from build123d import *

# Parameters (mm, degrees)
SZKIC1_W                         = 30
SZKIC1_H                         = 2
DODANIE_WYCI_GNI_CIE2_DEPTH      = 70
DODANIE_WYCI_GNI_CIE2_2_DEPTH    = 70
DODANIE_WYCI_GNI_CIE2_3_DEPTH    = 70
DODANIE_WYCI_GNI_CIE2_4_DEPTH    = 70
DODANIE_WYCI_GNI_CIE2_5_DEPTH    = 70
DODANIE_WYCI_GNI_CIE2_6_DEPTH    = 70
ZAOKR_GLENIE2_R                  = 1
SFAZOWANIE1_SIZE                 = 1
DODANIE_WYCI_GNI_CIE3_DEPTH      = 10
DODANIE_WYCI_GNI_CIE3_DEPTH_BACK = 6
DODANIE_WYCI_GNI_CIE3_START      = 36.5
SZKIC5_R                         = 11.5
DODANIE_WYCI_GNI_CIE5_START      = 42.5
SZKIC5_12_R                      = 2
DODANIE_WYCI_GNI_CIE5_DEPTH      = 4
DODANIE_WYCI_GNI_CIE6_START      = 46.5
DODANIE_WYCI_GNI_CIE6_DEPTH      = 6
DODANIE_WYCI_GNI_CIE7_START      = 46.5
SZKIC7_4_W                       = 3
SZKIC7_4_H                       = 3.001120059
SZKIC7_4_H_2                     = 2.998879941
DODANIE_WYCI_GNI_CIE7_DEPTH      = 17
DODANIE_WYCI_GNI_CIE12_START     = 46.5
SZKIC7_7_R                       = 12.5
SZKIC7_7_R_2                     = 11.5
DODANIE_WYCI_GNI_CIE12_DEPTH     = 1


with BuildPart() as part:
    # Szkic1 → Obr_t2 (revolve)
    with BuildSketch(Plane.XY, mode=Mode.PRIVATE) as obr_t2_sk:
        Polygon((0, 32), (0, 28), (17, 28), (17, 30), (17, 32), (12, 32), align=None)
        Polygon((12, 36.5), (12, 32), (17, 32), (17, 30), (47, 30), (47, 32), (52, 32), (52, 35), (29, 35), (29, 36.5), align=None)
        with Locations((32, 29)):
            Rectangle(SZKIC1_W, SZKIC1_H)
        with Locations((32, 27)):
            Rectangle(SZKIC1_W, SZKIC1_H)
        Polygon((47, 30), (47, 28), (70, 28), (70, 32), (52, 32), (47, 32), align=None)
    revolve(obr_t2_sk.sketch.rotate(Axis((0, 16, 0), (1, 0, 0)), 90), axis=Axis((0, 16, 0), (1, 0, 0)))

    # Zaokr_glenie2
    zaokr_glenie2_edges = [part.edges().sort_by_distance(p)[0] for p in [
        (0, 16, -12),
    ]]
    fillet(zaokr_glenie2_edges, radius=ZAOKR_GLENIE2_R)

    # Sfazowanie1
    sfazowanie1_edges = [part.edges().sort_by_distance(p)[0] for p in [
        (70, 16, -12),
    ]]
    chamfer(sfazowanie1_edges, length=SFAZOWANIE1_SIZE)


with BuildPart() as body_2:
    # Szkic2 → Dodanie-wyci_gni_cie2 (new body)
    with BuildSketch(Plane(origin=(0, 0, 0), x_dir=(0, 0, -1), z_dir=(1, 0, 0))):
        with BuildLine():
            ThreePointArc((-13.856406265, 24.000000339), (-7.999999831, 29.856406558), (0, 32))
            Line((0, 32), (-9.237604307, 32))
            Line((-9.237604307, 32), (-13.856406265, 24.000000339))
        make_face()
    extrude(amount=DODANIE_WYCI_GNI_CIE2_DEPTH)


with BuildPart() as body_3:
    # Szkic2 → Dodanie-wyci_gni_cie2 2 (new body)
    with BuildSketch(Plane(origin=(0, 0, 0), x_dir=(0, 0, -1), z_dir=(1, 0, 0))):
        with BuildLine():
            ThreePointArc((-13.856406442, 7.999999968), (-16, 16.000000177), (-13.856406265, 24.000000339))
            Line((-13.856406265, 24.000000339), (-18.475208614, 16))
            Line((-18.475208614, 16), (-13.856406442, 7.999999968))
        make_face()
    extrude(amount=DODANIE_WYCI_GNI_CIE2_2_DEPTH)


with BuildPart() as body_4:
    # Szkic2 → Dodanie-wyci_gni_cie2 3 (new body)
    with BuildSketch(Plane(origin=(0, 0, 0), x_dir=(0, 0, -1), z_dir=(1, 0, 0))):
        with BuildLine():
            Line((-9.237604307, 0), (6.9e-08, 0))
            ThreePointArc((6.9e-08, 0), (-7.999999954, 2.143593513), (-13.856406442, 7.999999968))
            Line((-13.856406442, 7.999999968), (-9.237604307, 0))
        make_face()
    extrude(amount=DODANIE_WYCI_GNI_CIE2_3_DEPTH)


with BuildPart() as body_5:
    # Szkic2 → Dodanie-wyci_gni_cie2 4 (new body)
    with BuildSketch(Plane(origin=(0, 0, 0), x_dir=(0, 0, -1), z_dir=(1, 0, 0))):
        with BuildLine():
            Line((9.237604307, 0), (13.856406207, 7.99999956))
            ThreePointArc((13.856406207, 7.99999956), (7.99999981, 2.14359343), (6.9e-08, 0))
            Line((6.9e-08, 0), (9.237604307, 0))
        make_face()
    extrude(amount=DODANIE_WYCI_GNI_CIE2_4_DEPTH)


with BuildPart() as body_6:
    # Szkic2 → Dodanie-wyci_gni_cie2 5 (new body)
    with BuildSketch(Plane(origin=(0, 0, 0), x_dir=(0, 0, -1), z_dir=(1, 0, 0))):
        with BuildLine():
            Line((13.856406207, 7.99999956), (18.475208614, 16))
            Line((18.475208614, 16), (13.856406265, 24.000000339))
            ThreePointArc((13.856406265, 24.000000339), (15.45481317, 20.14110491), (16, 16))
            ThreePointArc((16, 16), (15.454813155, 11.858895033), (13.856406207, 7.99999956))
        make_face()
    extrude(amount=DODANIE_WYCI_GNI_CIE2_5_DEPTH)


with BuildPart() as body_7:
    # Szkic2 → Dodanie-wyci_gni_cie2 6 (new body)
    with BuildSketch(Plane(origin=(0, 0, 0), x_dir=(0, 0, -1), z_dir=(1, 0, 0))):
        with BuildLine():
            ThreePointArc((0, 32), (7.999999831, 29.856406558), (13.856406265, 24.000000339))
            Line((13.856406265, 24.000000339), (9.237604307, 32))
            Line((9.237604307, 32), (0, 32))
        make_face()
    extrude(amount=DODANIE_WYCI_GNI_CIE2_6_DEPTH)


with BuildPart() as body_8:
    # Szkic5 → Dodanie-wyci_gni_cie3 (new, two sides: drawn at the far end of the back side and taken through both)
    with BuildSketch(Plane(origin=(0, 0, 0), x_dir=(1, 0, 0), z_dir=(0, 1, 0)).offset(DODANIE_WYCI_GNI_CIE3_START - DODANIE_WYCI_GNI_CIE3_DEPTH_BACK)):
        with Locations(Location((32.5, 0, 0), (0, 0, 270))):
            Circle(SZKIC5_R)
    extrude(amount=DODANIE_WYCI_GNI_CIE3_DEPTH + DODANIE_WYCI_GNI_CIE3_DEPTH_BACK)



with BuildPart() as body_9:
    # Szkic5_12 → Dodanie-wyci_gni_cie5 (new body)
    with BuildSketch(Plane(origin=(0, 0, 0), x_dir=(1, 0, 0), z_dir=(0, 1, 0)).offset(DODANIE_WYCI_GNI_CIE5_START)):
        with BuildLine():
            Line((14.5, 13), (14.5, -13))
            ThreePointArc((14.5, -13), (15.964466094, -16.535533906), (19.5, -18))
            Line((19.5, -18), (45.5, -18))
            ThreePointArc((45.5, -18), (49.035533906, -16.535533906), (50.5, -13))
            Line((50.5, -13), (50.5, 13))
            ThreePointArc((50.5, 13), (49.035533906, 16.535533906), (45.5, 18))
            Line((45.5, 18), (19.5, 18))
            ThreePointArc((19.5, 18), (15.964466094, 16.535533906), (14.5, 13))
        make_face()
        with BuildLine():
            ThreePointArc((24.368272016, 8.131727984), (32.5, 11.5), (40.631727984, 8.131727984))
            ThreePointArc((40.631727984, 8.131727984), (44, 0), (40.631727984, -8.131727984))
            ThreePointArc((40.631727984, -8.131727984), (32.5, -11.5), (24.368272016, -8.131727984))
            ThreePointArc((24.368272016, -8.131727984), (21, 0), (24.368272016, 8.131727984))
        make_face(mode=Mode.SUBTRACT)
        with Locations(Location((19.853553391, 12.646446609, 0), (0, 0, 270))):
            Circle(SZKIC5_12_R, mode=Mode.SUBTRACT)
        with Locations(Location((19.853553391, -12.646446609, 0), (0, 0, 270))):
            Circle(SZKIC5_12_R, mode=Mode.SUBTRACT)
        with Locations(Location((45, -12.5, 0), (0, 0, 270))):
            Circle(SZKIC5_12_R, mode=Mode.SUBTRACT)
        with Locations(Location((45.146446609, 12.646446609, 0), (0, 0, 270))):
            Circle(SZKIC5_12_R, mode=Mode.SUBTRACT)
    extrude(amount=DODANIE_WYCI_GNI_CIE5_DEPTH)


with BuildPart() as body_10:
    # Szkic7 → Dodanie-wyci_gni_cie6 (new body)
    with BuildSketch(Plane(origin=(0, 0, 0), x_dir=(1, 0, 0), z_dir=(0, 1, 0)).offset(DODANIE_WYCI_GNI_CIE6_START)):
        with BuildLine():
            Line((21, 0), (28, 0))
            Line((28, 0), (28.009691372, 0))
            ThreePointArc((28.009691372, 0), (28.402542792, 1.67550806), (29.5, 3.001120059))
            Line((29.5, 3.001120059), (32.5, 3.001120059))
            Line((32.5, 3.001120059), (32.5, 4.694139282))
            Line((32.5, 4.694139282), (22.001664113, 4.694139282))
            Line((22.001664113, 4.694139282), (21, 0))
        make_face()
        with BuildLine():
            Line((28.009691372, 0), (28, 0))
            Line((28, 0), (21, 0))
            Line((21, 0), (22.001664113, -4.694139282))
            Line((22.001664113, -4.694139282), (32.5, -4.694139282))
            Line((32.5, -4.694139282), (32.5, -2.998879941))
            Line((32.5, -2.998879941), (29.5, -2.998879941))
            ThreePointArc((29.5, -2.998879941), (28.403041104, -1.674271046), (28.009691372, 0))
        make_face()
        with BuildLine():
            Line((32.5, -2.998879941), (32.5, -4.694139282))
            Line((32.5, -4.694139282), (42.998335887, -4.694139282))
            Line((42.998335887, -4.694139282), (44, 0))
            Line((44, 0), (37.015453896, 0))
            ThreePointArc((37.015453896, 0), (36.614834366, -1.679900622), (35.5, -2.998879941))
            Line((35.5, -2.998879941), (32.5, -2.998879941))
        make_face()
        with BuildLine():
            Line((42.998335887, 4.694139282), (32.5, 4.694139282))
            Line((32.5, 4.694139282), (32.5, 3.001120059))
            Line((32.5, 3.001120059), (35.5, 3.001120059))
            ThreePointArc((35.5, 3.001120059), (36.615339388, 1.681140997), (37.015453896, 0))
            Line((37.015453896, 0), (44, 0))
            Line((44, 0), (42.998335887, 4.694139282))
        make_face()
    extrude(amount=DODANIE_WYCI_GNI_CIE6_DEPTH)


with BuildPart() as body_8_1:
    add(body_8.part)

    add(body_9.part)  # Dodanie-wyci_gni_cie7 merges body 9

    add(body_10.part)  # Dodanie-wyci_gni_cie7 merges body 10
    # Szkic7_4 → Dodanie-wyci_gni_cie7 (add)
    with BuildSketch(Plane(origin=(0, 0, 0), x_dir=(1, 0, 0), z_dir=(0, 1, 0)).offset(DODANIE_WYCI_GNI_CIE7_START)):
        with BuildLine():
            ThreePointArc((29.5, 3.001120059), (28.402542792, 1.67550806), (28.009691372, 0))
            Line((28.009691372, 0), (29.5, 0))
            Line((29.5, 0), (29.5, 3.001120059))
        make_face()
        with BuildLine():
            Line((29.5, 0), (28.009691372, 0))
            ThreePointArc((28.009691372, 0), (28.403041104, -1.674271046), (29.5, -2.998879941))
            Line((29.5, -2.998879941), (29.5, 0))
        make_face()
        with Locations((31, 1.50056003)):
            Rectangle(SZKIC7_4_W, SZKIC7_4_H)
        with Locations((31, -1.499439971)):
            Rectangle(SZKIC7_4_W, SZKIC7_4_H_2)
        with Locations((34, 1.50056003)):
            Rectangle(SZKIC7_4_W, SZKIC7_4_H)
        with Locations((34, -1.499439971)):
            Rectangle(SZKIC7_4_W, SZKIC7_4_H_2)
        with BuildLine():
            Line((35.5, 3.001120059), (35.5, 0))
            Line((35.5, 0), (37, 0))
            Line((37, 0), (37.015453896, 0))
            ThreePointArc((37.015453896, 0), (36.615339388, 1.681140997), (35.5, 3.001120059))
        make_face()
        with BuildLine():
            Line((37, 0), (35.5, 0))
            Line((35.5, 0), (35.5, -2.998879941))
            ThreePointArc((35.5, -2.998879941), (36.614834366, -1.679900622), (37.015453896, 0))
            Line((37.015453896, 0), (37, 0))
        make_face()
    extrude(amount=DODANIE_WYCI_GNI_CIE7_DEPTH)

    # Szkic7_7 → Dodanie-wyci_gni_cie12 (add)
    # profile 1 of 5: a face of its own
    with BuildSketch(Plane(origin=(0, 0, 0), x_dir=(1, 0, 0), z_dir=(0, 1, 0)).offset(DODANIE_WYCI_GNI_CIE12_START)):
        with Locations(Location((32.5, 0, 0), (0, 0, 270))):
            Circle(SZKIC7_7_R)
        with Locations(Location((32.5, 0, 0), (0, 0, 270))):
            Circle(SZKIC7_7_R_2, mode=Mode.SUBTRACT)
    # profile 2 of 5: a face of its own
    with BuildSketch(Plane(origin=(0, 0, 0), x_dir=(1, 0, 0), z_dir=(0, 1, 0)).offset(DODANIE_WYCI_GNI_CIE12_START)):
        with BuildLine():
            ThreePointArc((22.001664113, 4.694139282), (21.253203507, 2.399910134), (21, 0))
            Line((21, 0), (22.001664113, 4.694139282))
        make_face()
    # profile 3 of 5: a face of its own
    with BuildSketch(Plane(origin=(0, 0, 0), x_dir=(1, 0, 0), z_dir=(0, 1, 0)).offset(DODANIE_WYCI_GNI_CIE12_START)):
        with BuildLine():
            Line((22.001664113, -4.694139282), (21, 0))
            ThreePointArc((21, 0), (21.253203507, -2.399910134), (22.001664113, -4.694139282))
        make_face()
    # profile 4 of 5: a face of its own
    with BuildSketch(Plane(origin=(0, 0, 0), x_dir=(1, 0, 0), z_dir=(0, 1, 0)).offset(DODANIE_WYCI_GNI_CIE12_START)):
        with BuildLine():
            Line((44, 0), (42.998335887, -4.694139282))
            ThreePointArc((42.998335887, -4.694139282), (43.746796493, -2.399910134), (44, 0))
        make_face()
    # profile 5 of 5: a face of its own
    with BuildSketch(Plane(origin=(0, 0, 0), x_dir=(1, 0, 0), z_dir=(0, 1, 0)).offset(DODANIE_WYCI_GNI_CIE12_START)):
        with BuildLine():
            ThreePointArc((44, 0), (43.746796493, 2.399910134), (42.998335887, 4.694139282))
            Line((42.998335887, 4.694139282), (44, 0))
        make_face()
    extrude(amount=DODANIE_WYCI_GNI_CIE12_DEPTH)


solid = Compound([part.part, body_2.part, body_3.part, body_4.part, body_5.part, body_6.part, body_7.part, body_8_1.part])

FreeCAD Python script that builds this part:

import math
import FreeCAD as App
import Part
import Sketcher
from FreeCAD import Vector
Q = App.Units.Quantity


def edges_at(feature, points):
    """Names of the edges that pass closest to the given points."""
    edges = feature.Shape.Edges
    near = lambda p: min(range(len(edges)), key=lambda i: edges[i].distToShape(Part.Vertex(*p))[0])
    return sorted({f"Edge{near(p) + 1}" for p in points})


def add_polygon(sketch, points):
    """Adds a closed chain of lines whose ends are joined by coincident constraints."""
    first, n = sketch.GeometryCount, len(points)
    for a, b in zip(points, points[1:] + points[:1]):
        sketch.addGeometry(Part.LineSegment(App.Vector(*a, 0), App.Vector(*b, 0)), False)
    for i in range(n):
        sketch.addConstraint(Sketcher.Constraint("Coincident", first + i, 2, first + (i + 1) % n, 1))

doc = App.newDocument("Part")
body = doc.addObject("PartDesign::Body", "Body")

# Sketch on XY plane
sketch1 = doc.addObject("Sketcher::SketchObject", "Sketch")
body.addObject(sketch1)
sketch1.AttachmentSupport = (doc.XY_Plane, [""])
sketch1.MapMode = "FlatFace"
add_polygon(sketch1, [(0, 32), (0, 28), (17, 28), (17, 26), (47, 26), (47, 28), (70, 28), (70, 32), (52, 32), (52, 35), (29, 35), (29, 36.5), (12, 36.5), (12, 32)])  # lines 0-13
sketch1.addGeometry(Part.LineSegment(Vector(0, 16, 0), Vector(70, 16, 0)), True)  # axis
sketch1.addConstraint([
    Sketcher.Constraint("Vertical", 0),
    Sketcher.Constraint("Horizontal", 1),
    Sketcher.Constraint("Vertical", 2),
    Sketcher.Constraint("Horizontal", 3),
    Sketcher.Constraint("Vertical", 4),
    Sketcher.Constraint("Horizontal", 5),
    Sketcher.Constraint("Vertical", 6),
    Sketcher.Constraint("Horizontal", 7),
    Sketcher.Constraint("Vertical", 8),
    Sketcher.Constraint("Horizontal", 9),
    Sketcher.Constraint("Vertical", 10),
    Sketcher.Constraint("Horizontal", 11),
    Sketcher.Constraint("Vertical", 12),
    Sketcher.Constraint("Horizontal", 13),
    Sketcher.Constraint("Horizontal", 14),
    Sketcher.Constraint("PointOnObject", 0, 2, -2),
    Sketcher.Constraint("PointOnObject", 14, 1, -2),
    Sketcher.Constraint("Horizontal", 1, 2, 4, 2),
    Sketcher.Constraint("Horizontal", 7, 2, 12, 2),
    Sketcher.Constraint("Vertical", 6, 2, 14, 2),
    Sketcher.Constraint("Equal", 5, 9),
    Sketcher.Constraint("Equal", 1, 11),
    Sketcher.Constraint("DistanceX", 1, 1, 1, 2, 17.0),
    Sketcher.Constraint("DistanceX", 3, 1, 3, 2, 30.0),
    Sketcher.Constraint("DistanceX", 5, 1, 5, 2, 23.0),
    Sketcher.Constraint("DistanceX", 7, 2, 7, 1, 18.0),
    Sketcher.Constraint("DistanceY", 0, 2, 0, 1, 4.0),
    Sketcher.Constraint("DistanceY", 2, 2, 2, 1, 2.0),
    Sketcher.Constraint("DistanceY", 8, 1, 8, 2, 3.0),
    Sketcher.Constraint("DistanceY", 10, 1, 10, 2, 1.5),
    Sketcher.Constraint("DistanceY", -1, 1, 0, 2, 28.0),
    Sketcher.Constraint("DistanceY", -1, 1, 14, 1, 16.0),
])
revolution = doc.addObject("PartDesign::Revolution", "Revolution")
body.addObject(revolution)
revolution.Profile = sketch1
revolution.ReferenceAxis = (sketch1, ["Axis0"])
revolution.Angle = 360
doc.recompute()

fillet = doc.addObject("PartDesign::Fillet", "Fillet")
body.addObject(fillet)
fillet.Base = (revolution, edges_at(revolution, [(0, 16, -12)]))
fillet.Radius = 1
doc.recompute()

chamfer = doc.addObject("PartDesign::Chamfer", "Chamfer")
body.addObject(chamfer)
chamfer.Base = (fillet, edges_at(fillet, [(70, 16, -12)]))
chamfer.Size = 1
body2 = doc.addObject("PartDesign::Body", "Body001")

# Sketch on YZ plane
sketch2 = doc.addObject("Sketcher::SketchObject", "Sketch001")
body2.addObject(sketch2)
sketch2.AttachmentSupport = (doc.getObject("YZ_Plane001"), [""])
sketch2.MapMode = "FlatFace"
sketch2.addGeometry([
    Part.ArcOfCircle(Part.Circle(Vector(16, 0, 0), Vector(0, 0, 1), 16), math.radians(0), math.radians(60)),
    Part.LineSegment(Vector(32, 0, 0), Vector(32, 9, 0)),
    Part.LineSegment(Vector(32, 9, 0), Vector(24, 14, 0)),
], False)
sketch2.addConstraint([
    Sketcher.Constraint("Tangent", 0, 1, 1, 1),
    Sketcher.Constraint("Coincident", 1, 2, 2, 1),
    Sketcher.Constraint("Tangent", 2, 2, 0, 2),
    Sketcher.Constraint("Vertical", 1),
    Sketcher.Constraint("PointOnObject", 0, 3, -1),
    Sketcher.Constraint("Radius", 0, 16.0),
    Sketcher.Constraint("Angle", 2, Q("150 deg")),
    Sketcher.Constraint("DistanceX", -1, 1, 0, 3, 16.0),
])
pad1 = doc.addObject("PartDesign::Pad", "Pad")
body2.addObject(pad1)
pad1.Profile = sketch2
pad1.Length = 70
body3 = doc.addObject("PartDesign::Body", "Body002")

# Sketch on YZ plane
sketch3 = doc.addObject("Sketcher::SketchObject", "Sketch002")
body3.addObject(sketch3)
sketch3.AttachmentSupport = (doc.getObject("YZ_Plane002"), [""])
sketch3.MapMode = "FlatFace"
sketch3.addGeometry([
    Part.ArcOfCircle(Part.Circle(Vector(16, 0, 0), Vector(0, 0, 1), 16), math.radians(60), math.radians(120)),
    Part.LineSegment(Vector(24, 14, 0), Vector(16, 18, 0)),
    Part.LineSegment(Vector(16, 18, 0), Vector(8, 14, 0)),
], False)
sketch3.addConstraint([
    Sketcher.Constraint("Tangent", 0, 1, 1, 1),
    Sketcher.Constraint("Coincident", 1, 2, 2, 1),
    Sketcher.Constraint("Tangent", 2, 2, 0, 2),
    Sketcher.Constraint("PointOnObject", 0, 3, -1),
    Sketcher.Constraint("Horizontal", 0, 1, 2, 2),
    Sketcher.Constraint("Radius", 0, 16.0),
    Sketcher.Constraint("Angle", 1, Q("150 deg")),
    Sketcher.Constraint("DistanceX", -1, 1, 0, 3, 16.0),
])
pad2 = doc.addObject("PartDesign::Pad", "Pad001")
body3.addObject(pad2)
pad2.Profile = sketch3
pad2.Length = 70
body4 = doc.addObject("PartDesign::Body", "Body003")

# Sketch on YZ plane
sketch4 = doc.addObject("Sketcher::SketchObject", "Sketch003")
body4.addObject(sketch4)
sketch4.AttachmentSupport = (doc.getObject("YZ_Plane003"), [""])
sketch4.MapMode = "FlatFace"
sketch4.addGeometry([
    Part.LineSegment(Vector(0, 9, 0), Vector(0, 0, 0)),
    Part.ArcOfCircle(Part.Circle(Vector(16, 0, 0), Vector(0, 0, 1), 16), math.radians(120), math.radians(180)),
    Part.LineSegment(Vector(8, 14, 0), Vector(0, 9, 0)),
], False)
sketch4.addConstraint([
    Sketcher.Constraint("Tangent", 0, 2, 1, 2),
    Sketcher.Constraint("Tangent", 1, 1, 2, 1),
    Sketcher.Constraint("Coincident", 2, 2, 0, 1),
    Sketcher.Constraint("Vertical", 0),
    Sketcher.Constraint("Coincident", 0, 2, -1, 1),
    Sketcher.Constraint("Radius", 1, 16.0),
    Sketcher.Constraint("Angle", 2, Q("-150 deg")),
])
pad3 = doc.addObject("PartDesign::Pad", "Pad002")
body4.addObject(pad3)
pad3.Profile = sketch4
pad3.Length = 70
body5 = doc.addObject("PartDesign::Body", "Body004")

# Sketch on YZ plane
sketch5 = doc.addObject("Sketcher::SketchObject", "Sketch004")
body5.addObject(sketch5)
sketch5.AttachmentSupport = (doc.getObject("YZ_Plane004"), [""])
sketch5.MapMode = "FlatFace"
sketch5.addGeometry([
    Part.LineSegment(Vector(0, -9, 0), Vector(8, -14, 0)),
    Part.ArcOfCircle(Part.Circle(Vector(16, 0, 0), Vector(0, 0, 1), 16), math.radians(-180), math.radians(-120)),
    Part.LineSegment(Vector(0, 0, 0), Vector(0, -9, 0)),
], False)
sketch5.addConstraint([
    Sketcher.Constraint("Tangent", 0, 2, 1, 2),
    Sketcher.Constraint("Tangent", 1, 1, 2, 1),
    Sketcher.Constraint("Coincident", 2, 2, 0, 1),
    Sketcher.Constraint("Vertical", 2),
    Sketcher.Constraint("Coincident", 1, 1, -1, 1),
    Sketcher.Constraint("Radius", 1, 16.0),
    Sketcher.Constraint("Angle", 0, Q("-30 deg")),
])
pad4 = doc.addObject("PartDesign::Pad", "Pad003")
body5.addObject(pad4)
pad4.Profile = sketch5
pad4.Length = 70
body6 = doc.addObject("PartDesign::Body", "Body005")

# Sketch on YZ plane
sketch6 = doc.addObject("Sketcher::SketchObject", "Sketch005")
body6.addObject(sketch6)
sketch6.AttachmentSupport = (doc.getObject("YZ_Plane005"), [""])
sketch6.MapMode = "FlatFace"
sketch6.addGeometry([
    Part.LineSegment(Vector(8, -14, 0), Vector(16, -18, 0)),
    Part.LineSegment(Vector(16, -18, 0), Vector(24, -14, 0)),
    Part.ArcOfCircle(Part.Circle(Vector(16, 0, 0), Vector(0, 0, 1), 16), math.radians(-90), math.radians(-60)),
    Part.ArcOfCircle(Part.Circle(Vector(16, 0, 0), Vector(0, 0, 1), 16), math.radians(-120), math.radians(-90)),
], False)
sketch6.addConstraint([
    Sketcher.Constraint("Coincident", 0, 2, 1, 1),
    Sketcher.Constraint("Tangent", 1, 2, 2, 2),
    Sketcher.Constraint("Tangent", 2, 1, 3, 2),
    Sketcher.Constraint("Tangent", 3, 1, 0, 1),
    Sketcher.Constraint("Equal", 2, 3),
    Sketcher.Constraint("PointOnObject", 2, 3, -1),
    Sketcher.Constraint("Horizontal", 1, 2, 3, 1),
    Sketcher.Constraint("Vertical", 0, 2, 2, 1),
    Sketcher.Constraint("Radius", 2, 16.0),
    Sketcher.Constraint("Angle", 0, Q("-30 deg")),
    Sketcher.Constraint("DistanceX", -1, 1, 2, 3, 16.0),
])
pad5 = doc.addObject("PartDesign::Pad", "Pad004")
body6.addObject(pad5)
pad5.Profile = sketch6
pad5.Length = 70
body7 = doc.addObject("PartDesign::Body", "Body006")

# Sketch on YZ plane
sketch7 = doc.addObject("Sketcher::SketchObject", "Sketch006")
body7.addObject(sketch7)
sketch7.AttachmentSupport = (doc.getObject("YZ_Plane006"), [""])
sketch7.MapMode = "FlatFace"
sketch7.addGeometry([
    Part.ArcOfCircle(Part.Circle(Vector(16, 0, 0), Vector(0, 0, 1), 16), math.radians(-60), math.radians(0)),
    Part.LineSegment(Vector(24, -14, 0), Vector(32, -9, 0)),
    Part.LineSegment(Vector(32, -9, 0), Vector(32, 0, 0)),
], False)
sketch7.addConstraint([
    Sketcher.Constraint("Tangent", 0, 1, 1, 1),
    Sketcher.Constraint("Coincident", 1, 2, 2, 1),
    Sketcher.Constraint("Tangent", 2, 2, 0, 2),
    Sketcher.Constraint("Vertical", 2),
    Sketcher.Constraint("PointOnObject", 0, 3, -1),
    Sketcher.Constraint("Radius", 0, 16.0),
    Sketcher.Constraint("Angle", 1, Q("30 deg")),
    Sketcher.Constraint("DistanceX", -1, 1, 0, 3, 16.0),
])
pad6 = doc.addObject("PartDesign::Pad", "Pad005")
body7.addObject(pad6)
pad6.Profile = sketch7
pad6.Length = 70
body8 = doc.addObject("PartDesign::Body", "Body007")

# Sketch on XZ plane
sketch8 = doc.addObject("Sketcher::SketchObject", "Sketch007")
body8.addObject(sketch8)
sketch8.AttachmentSupport = (doc.getObject("XZ_Plane007"), [""])
sketch8.MapMode = "FlatFace"
sketch8.AttachmentOffset = App.Placement(Vector(0, 0, -36.5), App.Rotation())
sketch8.addGeometry(Part.Circle(Vector(32, 0, 0), Vector(0, 0, 1), 12), False)
sketch8.addConstraint([
    Sketcher.Constraint("PointOnObject", 0, 3, -1),
    Sketcher.Constraint("Diameter", 0, 23.0),
    Sketcher.Constraint("DistanceX", -1, 1, 0, 3, 32.5),
])
pad7 = doc.addObject("PartDesign::Pad", "Pad006")
body8.addObject(pad7)
pad7.Profile = sketch8
pad7.Type = "TwoLengths"
pad7.Length = 10
pad7.Length2 = 6
pad7.Reversed = True
body9 = doc.addObject("PartDesign::Body", "Body008")

# Sketch on XZ plane
sketch9 = doc.addObject("Sketcher::SketchObject", "Sketch008")
body9.addObject(sketch9)
sketch9.AttachmentSupport = (doc.getObject("XZ_Plane008"), [""])
sketch9.MapMode = "FlatFace"
sketch9.AttachmentOffset = App.Placement(Vector(0, 0, -42.5), App.Rotation())
sketch9.addGeometry([
    Part.LineSegment(Vector(14.5, -13, 0), Vector(14.5, 13, 0)),  # 0
    Part.ArcOfCircle(Part.Circle(Vector(19.5, 13, 0), Vector(0, 0, 1), 5), math.radians(90), math.radians(180)),  # 1
    Part.LineSegment(Vector(19.5, 18, 0), Vector(45.5, 18, 0)),  # 2
    Part.ArcOfCircle(Part.Circle(Vector(45.5, 13, 0), Vector(0, 0, 1), 5), math.radians(0), math.radians(90)),  # 3
    Part.LineSegment(Vector(50.5, 13, 0), Vector(50.5, -13, 0)),  # 4
    Part.ArcOfCircle(Part.Circle(Vector(45.5, -13, 0), Vector(0, 0, 1), 5), math.radians(-90), math.radians(0)),  # 5
    Part.LineSegment(Vector(45.5, -18, 0), Vector(19.5, -18, 0)),  # 6
    Part.ArcOfCircle(Part.Circle(Vector(19.5, -13, 0), Vector(0, 0, 1), 5), math.radians(180), math.radians(270)),  # 7
    Part.Circle(Vector(19.9, 12.6, 0), Vector(0, 0, 1), 2),  # 8
    Part.Circle(Vector(45, 12.5, 0), Vector(0, 0, 1), 2),  # 9
    Part.Circle(Vector(19.9, -12.6, 0), Vector(0, 0, 1), 2),  # 10
    Part.ArcOfCircle(Part.Circle(Vector(32.5, 0, 0), Vector(0, 0, 1), 11.5), math.radians(135), math.radians(225)),  # 11
    Part.ArcOfCircle(Part.Circle(Vector(32.5, 0, 0), Vector(0, 0, 1), 11.5), math.radians(-135), math.radians(-45)),  # 12
    Part.ArcOfCircle(Part.Circle(Vector(32.5, 0, 0), Vector(0, 0, 1), 11.5), math.radians(-45), math.radians(45)),  # 13
    Part.ArcOfCircle(Part.Circle(Vector(32.5, 0, 0), Vector(0, 0, 1), 11.5), math.radians(45), math.radians(135)),  # 14
    Part.Circle(Vector(45.1, -12.6, 0), Vector(0, 0, 1), 2),  # 15
], False)
sketch9.addConstraint([
    Sketcher.Constraint("Tangent", 0, 2, 1, 2),
    Sketcher.Constraint("Tangent", 1, 1, 2, 1),
    Sketcher.Constraint("Tangent", 2, 2, 3, 2),
    Sketcher.Constraint("Tangent", 3, 1, 4, 1),
    Sketcher.Constraint("Tangent", 4, 2, 5, 2),
    Sketcher.Constraint("Tangent", 5, 1, 6, 1),
    Sketcher.Constraint("Tangent", 6, 2, 7, 2),
    Sketcher.Constraint("Tangent", 7, 1, 0, 1),
    Sketcher.Constraint("Tangent", 11, 2, 12, 1),
    Sketcher.Constraint("Tangent", 12, 2, 13, 1),
    Sketcher.Constraint("Tangent", 13, 2, 14, 1),
    Sketcher.Constraint("Tangent", 14, 2, 11, 1),
    Sketcher.Constraint("Vertical", 0),
    Sketcher.Constraint("Horizontal", 2),
    Sketcher.Constraint("Vertical", 4),
    Sketcher.Constraint("Horizontal", 6),
    Sketcher.Constraint("Equal", 1, 3),
    Sketcher.Constraint("Equal", 3, 5),
    Sketcher.Constraint("Equal", 5, 7),
    Sketcher.Constraint("Equal", 8, 9),
    Sketcher.Constraint("Equal", 9, 10),
    Sketcher.Constraint("Equal", 11, 12),
    Sketcher.Constraint("Equal", 10, 15),
    Sketcher.Constraint("Symmetric", 8, 3, 10, 3, -1),
    Sketcher.Constraint("Symmetric", 12, 2, 13, 2, -1),
    Sketcher.Constraint("Horizontal", 10, 3, 15, 3),
    Sketcher.Constraint("Horizontal", 11, 2, 12, 2),
    Sketcher.Constraint("Horizontal", 13, 2, 14, 2),
    Sketcher.Constraint("Equal", 6, 0),
    Sketcher.Constraint("Diameter", 8, 4.0),
    Sketcher.Constraint("Radius", 1, 5.0),
    Sketcher.Constraint("Radius", 11, 11.5),
    Sketcher.Constraint("DistanceX", 2, 1, 2, 2, 26.0),
    Sketcher.Constraint("DistanceY", -1, 1, 1, 3, 13.0),
    Sketcher.Constraint("DistanceX", -1, 1, 9, 3, 45.0),
    Sketcher.Constraint("DistanceX", 11, 3, 3, 3, 13.0),
    Sketcher.Constraint("DistanceX", -1, 1, 1, 3, 19.5),
    Sketcher.Constraint("DistanceY", -1, 1, 9, 3, 12.5),
    Sketcher.Constraint("DistanceX", 10, 3, 11, 2, 4.514719),
    Sketcher.Constraint("DistanceY", 10, 3, 11, 2, 4.514719),
    Sketcher.Constraint("DistanceX", 12, 2, 15, 3, 4.514719),
    Sketcher.Constraint("DistanceX", -1, 1, 8, 3, 19.853553),
])
pad8 = doc.addObject("PartDesign::Pad", "Pad007")
body9.addObject(pad8)
pad8.Profile = sketch9
pad8.Length = 4
pad8.Reversed = True
body10 = doc.addObject("PartDesign::Body", "Body009")

# Sketch on XZ plane
sketch10 = doc.addObject("Sketcher::SketchObject", "Sketch009")
body10.addObject(sketch10)
sketch10.AttachmentSupport = (doc.getObject("XZ_Plane009"), [""])
sketch10.MapMode = "FlatFace"
sketch10.AttachmentOffset = App.Placement(Vector(0, 0, -46.5), App.Rotation())
add_polygon(sketch10, [(22, -4.7), (21, 0), (22, 4.7), (43, 4.7), (44, 0), (43, -4.7)])  # lines 0-5
sketch10.addGeometry(Part.ArcOfCircle(Part.Circle(Vector(31.8, 0, 0), Vector(0, 0, 1), 3.8), math.radians(180), math.radians(233)), False)  # 6
sketch10.addGeometry(Part.LineSegment(Vector(29.5, -3, 0), Vector(35.5, -3, 0)), False)  # 7
sketch10.addGeometry(Part.ArcOfCircle(Part.Circle(Vector(33.3, 0, 0), Vector(0, 0, 1), 3.7), math.radians(-54), math.radians(0)), False)  # 8
sketch10.addGeometry(Part.ArcOfCircle(Part.Circle(Vector(33.3, 0, 0), Vector(0, 0, 1), 3.7), math.radians(0), math.radians(54)), False)  # 9
sketch10.addGeometry(Part.LineSegment(Vector(35.5, 3, 0), Vector(29.5, 3, 0)), False)  # 10
sketch10.addGeometry(Part.ArcOfCircle(Part.Circle(Vector(31.8, 0, 0), Vector(0, 0, 1), 3.8), math.radians(127), math.radians(180)), False)  # 11
sketch10.addConstraint([
    Sketcher.Constraint("Coincident", 6, 2, 7, 1),
    Sketcher.Constraint("Coincident", 7, 2, 8, 1),
    Sketcher.Constraint("Tangent", 8, 2, 9, 1),
    Sketcher.Constraint("Coincident", 9, 2, 10, 1),
    Sketcher.Constraint("Coincident", 10, 2, 11, 1),
    Sketcher.Constraint("Tangent", 11, 2, 6, 1),
    Sketcher.Constraint("Horizontal", 2),
    Sketcher.Constraint("Horizontal", 5),
    Sketcher.Constraint("Horizontal", 7),
    Sketcher.Constraint("Horizontal", 10),
    Sketcher.Constraint("Equal", 8, 9),
    Sketcher.Constraint("Equal", 6, 11),
    Sketcher.Constraint("Symmetric", 2, 2, 4, 2, -1),
    Sketcher.Constraint("PointOnObject", 0, 2, -1),
    Sketcher.Constraint("PointOnObject", 3, 2, -1),
    Sketcher.Constraint("PointOnObject", 8, 2, -1),
    Sketcher.Constraint("PointOnObject", 11, 2, -1),
    Sketcher.Constraint("Parallel", 0, 3),
    Sketcher.Constraint("Parallel", 1, 4),
    Sketcher.Constraint("Horizontal", 6, 3, 8, 3),
    Sketcher.Constraint("Vertical", 7, 2, 9, 2),
    Sketcher.Constraint("DistanceX", 7, 1, 7, 2, 6.0),
    Sketcher.Constraint("DistanceX", -1, 1, 0, 2, 21.0),
    Sketcher.Constraint("DistanceX", -1, 1, 3, 2, 44.0),
    Sketcher.Constraint("DistanceY", 6, 2, 6, 3, 3.0),
    Sketcher.Constraint("DistanceX", -1, 1, 6, 2, 29.5),
    Sketcher.Constraint("Radius", 6, 3.764663),
    Sketcher.Constraint("Radius", 8, 3.727134),
    Sketcher.Constraint("DistanceX", 2, 1, 2, 2, 20.996672),
    Sketcher.Constraint("Distance", 0, 4.79982),
    Sketcher.Constraint("DistanceY", 6, 3, -1, 1, 0.00112),
])
pad9 = doc.addObject("PartDesign::Pad", "Pad008")
body10.addObject(pad9)
pad9.Profile = sketch10
pad9.Length = 6
pad9.Reversed = True
doc.recompute()

boolean = doc.addObject("PartDesign::Boolean", "Boolean")
body8.addObject(boolean)
boolean.Type = "Fuse"
boolean.addObjects([body9])
doc.recompute()

boolean2 = doc.addObject("PartDesign::Boolean", "Boolean001")
body8.addObject(boolean2)
boolean2.Type = "Fuse"
boolean2.addObjects([body10])

# Sketch on XZ plane
sketch11 = doc.addObject("Sketcher::SketchObject", "Sketch010")
body8.addObject(sketch11)
sketch11.AttachmentSupport = (doc.getObject("XZ_Plane007"), [""])
sketch11.MapMode = "FlatFace"
sketch11.AttachmentOffset = App.Placement(Vector(0, 0, -46.5), App.Rotation())
sketch11.addGeometry([
    Part.ArcOfCircle(Part.Circle(Vector(33.3, 0, 0), Vector(0, 0, 1), 3.7), math.radians(-54), math.radians(0)),  # 0
    Part.LineSegment(Vector(35.5, -3, 0), Vector(29.5, -3, 0)),  # 1
    Part.ArcOfCircle(Part.Circle(Vector(31.8, 0, 0), Vector(0, 0, 1), 3.8), math.radians(180), math.radians(233)),  # 2
    Part.ArcOfCircle(Part.Circle(Vector(31.8, 0, 0), Vector(0, 0, 1), 3.8), math.radians(127), math.radians(180)),  # 3
    Part.LineSegment(Vector(29.5, 3, 0), Vector(35.5, 3, 0)),  # 4
    Part.ArcOfCircle(Part.Circle(Vector(33.3, 0, 0), Vector(0, 0, 1), 3.7), math.radians(0), math.radians(54)),  # 5
], False)
sketch11.addConstraint([
    Sketcher.Constraint("Coincident", 0, 1, 1, 1),
    Sketcher.Constraint("Coincident", 1, 2, 2, 2),
    Sketcher.Constraint("Tangent", 2, 1, 3, 2),
    Sketcher.Constraint("Coincident", 3, 1, 4, 1),
    Sketcher.Constraint("Coincident", 4, 2, 5, 2),
    Sketcher.Constraint("Tangent", 5, 1, 0, 2),
    Sketcher.Constraint("Horizontal", 1),
    Sketcher.Constraint("Horizontal", 4),
    Sketcher.Constraint("Equal", 2, 3),
    Sketcher.Constraint("Equal", 0, 5),
    Sketcher.Constraint("PointOnObject", 2, 1, -1),
    Sketcher.Constraint("PointOnObject", 5, 1, -1),
    Sketcher.Constraint("Horizontal", 0, 3, 2, 3),
    Sketcher.Constraint("Vertical", 1, 2, 3, 1),
    Sketcher.Constraint("DistanceX", 1, 2, 1, 1, 6.0),
    Sketcher.Constraint("DistanceY", 0, 1, 0, 3, 3.0),
    Sketcher.Constraint("DistanceX", -1, 1, 0, 1, 35.5),
    Sketcher.Constraint("Radius", 0, 3.727134),
    Sketcher.Constraint("Radius", 2, 3.764663),
    Sketcher.Constraint("DistanceY", 0, 3, -1, 1, 0.00112),
])
pad10 = doc.addObject("PartDesign::Pad", "Pad009")
body8.addObject(pad10)
pad10.Profile = sketch11
pad10.Length = 17
pad10.Reversed = True

# Sketch on XZ plane
sketch12 = doc.addObject("Sketcher::SketchObject", "Sketch011")
body8.addObject(sketch12)
sketch12.AttachmentSupport = (doc.getObject("XZ_Plane007"), [""])
sketch12.MapMode = "FlatFace"
sketch12.AttachmentOffset = App.Placement(Vector(0, 0, -46.5), App.Rotation())
sketch12.addGeometry([
    Part.Circle(Vector(32.5, 0, 0), Vector(0, 0, 1), 12.5),  # 0
    Part.ArcOfCircle(Part.Circle(Vector(32.5, 0, 0), Vector(0, 0, 1), 11.5), math.radians(24), math.radians(156)),  # 1
    Part.LineSegment(Vector(22, 4.7, 0), Vector(21, 0, 0)),  # 2
    Part.LineSegment(Vector(21, 0, 0), Vector(22, -4.7, 0)),  # 3
    Part.ArcOfCircle(Part.Circle(Vector(32.5, 0, 0), Vector(0, 0, 1), 11.5), math.radians(-156), math.radians(-24)),  # 4
    Part.LineSegment(Vector(43, -4.7, 0), Vector(44, 0, 0)),  # 5
    Part.LineSegment(Vector(44, 0, 0), Vector(43, 4.7, 0)),  # 6
], False)
sketch12.addConstraint([
    Sketcher.Constraint("Coincident", 1, 2, 2, 1),
    Sketcher.Constraint("Coincident", 2, 2, 3, 1),
    Sketcher.Constraint("Coincident", 3, 2, 4, 1),
    Sketcher.Constraint("Coincident", 4, 2, 5, 1),
    Sketcher.Constraint("Coincident", 5, 2, 6, 1),
    Sketcher.Constraint("Coincident", 6, 2, 1, 1),
    Sketcher.Constraint("Coincident", 1, 3, 0, 3),
    Sketcher.Constraint("Coincident", 4, 3, 0, 3),
    Sketcher.Constraint("Equal", 1, 4),
    Sketcher.Constraint("Symmetric", 1, 2, 3, 2, -1),
    Sketcher.Constraint("PointOnObject", 2, 2, -1),
    Sketcher.Constraint("PointOnObject", 5, 2, -1),
    Sketcher.Constraint("Parallel", 2, 5),
    Sketcher.Constraint("Parallel", 3, 6),
    Sketcher.Constraint("Horizontal", 3, 2, 4, 2),
    Sketcher.Constraint("Diameter", 0, 25.0),
    Sketcher.Constraint("Radius", 1, 11.5),
    Sketcher.Constraint("DistanceX", -1, 1, 2, 2, 21.0),
    Sketcher.Constraint("DistanceX", -1, 1, 5, 2, 44.0),
    Sketcher.Constraint("Distance", 2, 4.79982),
])
pad11 = doc.addObject("PartDesign::Pad", "Pad010")
body8.addObject(pad11)
pad11.Profile = sketch12
pad11.Length = 1
pad11.Reversed = True

doc.recompute()
